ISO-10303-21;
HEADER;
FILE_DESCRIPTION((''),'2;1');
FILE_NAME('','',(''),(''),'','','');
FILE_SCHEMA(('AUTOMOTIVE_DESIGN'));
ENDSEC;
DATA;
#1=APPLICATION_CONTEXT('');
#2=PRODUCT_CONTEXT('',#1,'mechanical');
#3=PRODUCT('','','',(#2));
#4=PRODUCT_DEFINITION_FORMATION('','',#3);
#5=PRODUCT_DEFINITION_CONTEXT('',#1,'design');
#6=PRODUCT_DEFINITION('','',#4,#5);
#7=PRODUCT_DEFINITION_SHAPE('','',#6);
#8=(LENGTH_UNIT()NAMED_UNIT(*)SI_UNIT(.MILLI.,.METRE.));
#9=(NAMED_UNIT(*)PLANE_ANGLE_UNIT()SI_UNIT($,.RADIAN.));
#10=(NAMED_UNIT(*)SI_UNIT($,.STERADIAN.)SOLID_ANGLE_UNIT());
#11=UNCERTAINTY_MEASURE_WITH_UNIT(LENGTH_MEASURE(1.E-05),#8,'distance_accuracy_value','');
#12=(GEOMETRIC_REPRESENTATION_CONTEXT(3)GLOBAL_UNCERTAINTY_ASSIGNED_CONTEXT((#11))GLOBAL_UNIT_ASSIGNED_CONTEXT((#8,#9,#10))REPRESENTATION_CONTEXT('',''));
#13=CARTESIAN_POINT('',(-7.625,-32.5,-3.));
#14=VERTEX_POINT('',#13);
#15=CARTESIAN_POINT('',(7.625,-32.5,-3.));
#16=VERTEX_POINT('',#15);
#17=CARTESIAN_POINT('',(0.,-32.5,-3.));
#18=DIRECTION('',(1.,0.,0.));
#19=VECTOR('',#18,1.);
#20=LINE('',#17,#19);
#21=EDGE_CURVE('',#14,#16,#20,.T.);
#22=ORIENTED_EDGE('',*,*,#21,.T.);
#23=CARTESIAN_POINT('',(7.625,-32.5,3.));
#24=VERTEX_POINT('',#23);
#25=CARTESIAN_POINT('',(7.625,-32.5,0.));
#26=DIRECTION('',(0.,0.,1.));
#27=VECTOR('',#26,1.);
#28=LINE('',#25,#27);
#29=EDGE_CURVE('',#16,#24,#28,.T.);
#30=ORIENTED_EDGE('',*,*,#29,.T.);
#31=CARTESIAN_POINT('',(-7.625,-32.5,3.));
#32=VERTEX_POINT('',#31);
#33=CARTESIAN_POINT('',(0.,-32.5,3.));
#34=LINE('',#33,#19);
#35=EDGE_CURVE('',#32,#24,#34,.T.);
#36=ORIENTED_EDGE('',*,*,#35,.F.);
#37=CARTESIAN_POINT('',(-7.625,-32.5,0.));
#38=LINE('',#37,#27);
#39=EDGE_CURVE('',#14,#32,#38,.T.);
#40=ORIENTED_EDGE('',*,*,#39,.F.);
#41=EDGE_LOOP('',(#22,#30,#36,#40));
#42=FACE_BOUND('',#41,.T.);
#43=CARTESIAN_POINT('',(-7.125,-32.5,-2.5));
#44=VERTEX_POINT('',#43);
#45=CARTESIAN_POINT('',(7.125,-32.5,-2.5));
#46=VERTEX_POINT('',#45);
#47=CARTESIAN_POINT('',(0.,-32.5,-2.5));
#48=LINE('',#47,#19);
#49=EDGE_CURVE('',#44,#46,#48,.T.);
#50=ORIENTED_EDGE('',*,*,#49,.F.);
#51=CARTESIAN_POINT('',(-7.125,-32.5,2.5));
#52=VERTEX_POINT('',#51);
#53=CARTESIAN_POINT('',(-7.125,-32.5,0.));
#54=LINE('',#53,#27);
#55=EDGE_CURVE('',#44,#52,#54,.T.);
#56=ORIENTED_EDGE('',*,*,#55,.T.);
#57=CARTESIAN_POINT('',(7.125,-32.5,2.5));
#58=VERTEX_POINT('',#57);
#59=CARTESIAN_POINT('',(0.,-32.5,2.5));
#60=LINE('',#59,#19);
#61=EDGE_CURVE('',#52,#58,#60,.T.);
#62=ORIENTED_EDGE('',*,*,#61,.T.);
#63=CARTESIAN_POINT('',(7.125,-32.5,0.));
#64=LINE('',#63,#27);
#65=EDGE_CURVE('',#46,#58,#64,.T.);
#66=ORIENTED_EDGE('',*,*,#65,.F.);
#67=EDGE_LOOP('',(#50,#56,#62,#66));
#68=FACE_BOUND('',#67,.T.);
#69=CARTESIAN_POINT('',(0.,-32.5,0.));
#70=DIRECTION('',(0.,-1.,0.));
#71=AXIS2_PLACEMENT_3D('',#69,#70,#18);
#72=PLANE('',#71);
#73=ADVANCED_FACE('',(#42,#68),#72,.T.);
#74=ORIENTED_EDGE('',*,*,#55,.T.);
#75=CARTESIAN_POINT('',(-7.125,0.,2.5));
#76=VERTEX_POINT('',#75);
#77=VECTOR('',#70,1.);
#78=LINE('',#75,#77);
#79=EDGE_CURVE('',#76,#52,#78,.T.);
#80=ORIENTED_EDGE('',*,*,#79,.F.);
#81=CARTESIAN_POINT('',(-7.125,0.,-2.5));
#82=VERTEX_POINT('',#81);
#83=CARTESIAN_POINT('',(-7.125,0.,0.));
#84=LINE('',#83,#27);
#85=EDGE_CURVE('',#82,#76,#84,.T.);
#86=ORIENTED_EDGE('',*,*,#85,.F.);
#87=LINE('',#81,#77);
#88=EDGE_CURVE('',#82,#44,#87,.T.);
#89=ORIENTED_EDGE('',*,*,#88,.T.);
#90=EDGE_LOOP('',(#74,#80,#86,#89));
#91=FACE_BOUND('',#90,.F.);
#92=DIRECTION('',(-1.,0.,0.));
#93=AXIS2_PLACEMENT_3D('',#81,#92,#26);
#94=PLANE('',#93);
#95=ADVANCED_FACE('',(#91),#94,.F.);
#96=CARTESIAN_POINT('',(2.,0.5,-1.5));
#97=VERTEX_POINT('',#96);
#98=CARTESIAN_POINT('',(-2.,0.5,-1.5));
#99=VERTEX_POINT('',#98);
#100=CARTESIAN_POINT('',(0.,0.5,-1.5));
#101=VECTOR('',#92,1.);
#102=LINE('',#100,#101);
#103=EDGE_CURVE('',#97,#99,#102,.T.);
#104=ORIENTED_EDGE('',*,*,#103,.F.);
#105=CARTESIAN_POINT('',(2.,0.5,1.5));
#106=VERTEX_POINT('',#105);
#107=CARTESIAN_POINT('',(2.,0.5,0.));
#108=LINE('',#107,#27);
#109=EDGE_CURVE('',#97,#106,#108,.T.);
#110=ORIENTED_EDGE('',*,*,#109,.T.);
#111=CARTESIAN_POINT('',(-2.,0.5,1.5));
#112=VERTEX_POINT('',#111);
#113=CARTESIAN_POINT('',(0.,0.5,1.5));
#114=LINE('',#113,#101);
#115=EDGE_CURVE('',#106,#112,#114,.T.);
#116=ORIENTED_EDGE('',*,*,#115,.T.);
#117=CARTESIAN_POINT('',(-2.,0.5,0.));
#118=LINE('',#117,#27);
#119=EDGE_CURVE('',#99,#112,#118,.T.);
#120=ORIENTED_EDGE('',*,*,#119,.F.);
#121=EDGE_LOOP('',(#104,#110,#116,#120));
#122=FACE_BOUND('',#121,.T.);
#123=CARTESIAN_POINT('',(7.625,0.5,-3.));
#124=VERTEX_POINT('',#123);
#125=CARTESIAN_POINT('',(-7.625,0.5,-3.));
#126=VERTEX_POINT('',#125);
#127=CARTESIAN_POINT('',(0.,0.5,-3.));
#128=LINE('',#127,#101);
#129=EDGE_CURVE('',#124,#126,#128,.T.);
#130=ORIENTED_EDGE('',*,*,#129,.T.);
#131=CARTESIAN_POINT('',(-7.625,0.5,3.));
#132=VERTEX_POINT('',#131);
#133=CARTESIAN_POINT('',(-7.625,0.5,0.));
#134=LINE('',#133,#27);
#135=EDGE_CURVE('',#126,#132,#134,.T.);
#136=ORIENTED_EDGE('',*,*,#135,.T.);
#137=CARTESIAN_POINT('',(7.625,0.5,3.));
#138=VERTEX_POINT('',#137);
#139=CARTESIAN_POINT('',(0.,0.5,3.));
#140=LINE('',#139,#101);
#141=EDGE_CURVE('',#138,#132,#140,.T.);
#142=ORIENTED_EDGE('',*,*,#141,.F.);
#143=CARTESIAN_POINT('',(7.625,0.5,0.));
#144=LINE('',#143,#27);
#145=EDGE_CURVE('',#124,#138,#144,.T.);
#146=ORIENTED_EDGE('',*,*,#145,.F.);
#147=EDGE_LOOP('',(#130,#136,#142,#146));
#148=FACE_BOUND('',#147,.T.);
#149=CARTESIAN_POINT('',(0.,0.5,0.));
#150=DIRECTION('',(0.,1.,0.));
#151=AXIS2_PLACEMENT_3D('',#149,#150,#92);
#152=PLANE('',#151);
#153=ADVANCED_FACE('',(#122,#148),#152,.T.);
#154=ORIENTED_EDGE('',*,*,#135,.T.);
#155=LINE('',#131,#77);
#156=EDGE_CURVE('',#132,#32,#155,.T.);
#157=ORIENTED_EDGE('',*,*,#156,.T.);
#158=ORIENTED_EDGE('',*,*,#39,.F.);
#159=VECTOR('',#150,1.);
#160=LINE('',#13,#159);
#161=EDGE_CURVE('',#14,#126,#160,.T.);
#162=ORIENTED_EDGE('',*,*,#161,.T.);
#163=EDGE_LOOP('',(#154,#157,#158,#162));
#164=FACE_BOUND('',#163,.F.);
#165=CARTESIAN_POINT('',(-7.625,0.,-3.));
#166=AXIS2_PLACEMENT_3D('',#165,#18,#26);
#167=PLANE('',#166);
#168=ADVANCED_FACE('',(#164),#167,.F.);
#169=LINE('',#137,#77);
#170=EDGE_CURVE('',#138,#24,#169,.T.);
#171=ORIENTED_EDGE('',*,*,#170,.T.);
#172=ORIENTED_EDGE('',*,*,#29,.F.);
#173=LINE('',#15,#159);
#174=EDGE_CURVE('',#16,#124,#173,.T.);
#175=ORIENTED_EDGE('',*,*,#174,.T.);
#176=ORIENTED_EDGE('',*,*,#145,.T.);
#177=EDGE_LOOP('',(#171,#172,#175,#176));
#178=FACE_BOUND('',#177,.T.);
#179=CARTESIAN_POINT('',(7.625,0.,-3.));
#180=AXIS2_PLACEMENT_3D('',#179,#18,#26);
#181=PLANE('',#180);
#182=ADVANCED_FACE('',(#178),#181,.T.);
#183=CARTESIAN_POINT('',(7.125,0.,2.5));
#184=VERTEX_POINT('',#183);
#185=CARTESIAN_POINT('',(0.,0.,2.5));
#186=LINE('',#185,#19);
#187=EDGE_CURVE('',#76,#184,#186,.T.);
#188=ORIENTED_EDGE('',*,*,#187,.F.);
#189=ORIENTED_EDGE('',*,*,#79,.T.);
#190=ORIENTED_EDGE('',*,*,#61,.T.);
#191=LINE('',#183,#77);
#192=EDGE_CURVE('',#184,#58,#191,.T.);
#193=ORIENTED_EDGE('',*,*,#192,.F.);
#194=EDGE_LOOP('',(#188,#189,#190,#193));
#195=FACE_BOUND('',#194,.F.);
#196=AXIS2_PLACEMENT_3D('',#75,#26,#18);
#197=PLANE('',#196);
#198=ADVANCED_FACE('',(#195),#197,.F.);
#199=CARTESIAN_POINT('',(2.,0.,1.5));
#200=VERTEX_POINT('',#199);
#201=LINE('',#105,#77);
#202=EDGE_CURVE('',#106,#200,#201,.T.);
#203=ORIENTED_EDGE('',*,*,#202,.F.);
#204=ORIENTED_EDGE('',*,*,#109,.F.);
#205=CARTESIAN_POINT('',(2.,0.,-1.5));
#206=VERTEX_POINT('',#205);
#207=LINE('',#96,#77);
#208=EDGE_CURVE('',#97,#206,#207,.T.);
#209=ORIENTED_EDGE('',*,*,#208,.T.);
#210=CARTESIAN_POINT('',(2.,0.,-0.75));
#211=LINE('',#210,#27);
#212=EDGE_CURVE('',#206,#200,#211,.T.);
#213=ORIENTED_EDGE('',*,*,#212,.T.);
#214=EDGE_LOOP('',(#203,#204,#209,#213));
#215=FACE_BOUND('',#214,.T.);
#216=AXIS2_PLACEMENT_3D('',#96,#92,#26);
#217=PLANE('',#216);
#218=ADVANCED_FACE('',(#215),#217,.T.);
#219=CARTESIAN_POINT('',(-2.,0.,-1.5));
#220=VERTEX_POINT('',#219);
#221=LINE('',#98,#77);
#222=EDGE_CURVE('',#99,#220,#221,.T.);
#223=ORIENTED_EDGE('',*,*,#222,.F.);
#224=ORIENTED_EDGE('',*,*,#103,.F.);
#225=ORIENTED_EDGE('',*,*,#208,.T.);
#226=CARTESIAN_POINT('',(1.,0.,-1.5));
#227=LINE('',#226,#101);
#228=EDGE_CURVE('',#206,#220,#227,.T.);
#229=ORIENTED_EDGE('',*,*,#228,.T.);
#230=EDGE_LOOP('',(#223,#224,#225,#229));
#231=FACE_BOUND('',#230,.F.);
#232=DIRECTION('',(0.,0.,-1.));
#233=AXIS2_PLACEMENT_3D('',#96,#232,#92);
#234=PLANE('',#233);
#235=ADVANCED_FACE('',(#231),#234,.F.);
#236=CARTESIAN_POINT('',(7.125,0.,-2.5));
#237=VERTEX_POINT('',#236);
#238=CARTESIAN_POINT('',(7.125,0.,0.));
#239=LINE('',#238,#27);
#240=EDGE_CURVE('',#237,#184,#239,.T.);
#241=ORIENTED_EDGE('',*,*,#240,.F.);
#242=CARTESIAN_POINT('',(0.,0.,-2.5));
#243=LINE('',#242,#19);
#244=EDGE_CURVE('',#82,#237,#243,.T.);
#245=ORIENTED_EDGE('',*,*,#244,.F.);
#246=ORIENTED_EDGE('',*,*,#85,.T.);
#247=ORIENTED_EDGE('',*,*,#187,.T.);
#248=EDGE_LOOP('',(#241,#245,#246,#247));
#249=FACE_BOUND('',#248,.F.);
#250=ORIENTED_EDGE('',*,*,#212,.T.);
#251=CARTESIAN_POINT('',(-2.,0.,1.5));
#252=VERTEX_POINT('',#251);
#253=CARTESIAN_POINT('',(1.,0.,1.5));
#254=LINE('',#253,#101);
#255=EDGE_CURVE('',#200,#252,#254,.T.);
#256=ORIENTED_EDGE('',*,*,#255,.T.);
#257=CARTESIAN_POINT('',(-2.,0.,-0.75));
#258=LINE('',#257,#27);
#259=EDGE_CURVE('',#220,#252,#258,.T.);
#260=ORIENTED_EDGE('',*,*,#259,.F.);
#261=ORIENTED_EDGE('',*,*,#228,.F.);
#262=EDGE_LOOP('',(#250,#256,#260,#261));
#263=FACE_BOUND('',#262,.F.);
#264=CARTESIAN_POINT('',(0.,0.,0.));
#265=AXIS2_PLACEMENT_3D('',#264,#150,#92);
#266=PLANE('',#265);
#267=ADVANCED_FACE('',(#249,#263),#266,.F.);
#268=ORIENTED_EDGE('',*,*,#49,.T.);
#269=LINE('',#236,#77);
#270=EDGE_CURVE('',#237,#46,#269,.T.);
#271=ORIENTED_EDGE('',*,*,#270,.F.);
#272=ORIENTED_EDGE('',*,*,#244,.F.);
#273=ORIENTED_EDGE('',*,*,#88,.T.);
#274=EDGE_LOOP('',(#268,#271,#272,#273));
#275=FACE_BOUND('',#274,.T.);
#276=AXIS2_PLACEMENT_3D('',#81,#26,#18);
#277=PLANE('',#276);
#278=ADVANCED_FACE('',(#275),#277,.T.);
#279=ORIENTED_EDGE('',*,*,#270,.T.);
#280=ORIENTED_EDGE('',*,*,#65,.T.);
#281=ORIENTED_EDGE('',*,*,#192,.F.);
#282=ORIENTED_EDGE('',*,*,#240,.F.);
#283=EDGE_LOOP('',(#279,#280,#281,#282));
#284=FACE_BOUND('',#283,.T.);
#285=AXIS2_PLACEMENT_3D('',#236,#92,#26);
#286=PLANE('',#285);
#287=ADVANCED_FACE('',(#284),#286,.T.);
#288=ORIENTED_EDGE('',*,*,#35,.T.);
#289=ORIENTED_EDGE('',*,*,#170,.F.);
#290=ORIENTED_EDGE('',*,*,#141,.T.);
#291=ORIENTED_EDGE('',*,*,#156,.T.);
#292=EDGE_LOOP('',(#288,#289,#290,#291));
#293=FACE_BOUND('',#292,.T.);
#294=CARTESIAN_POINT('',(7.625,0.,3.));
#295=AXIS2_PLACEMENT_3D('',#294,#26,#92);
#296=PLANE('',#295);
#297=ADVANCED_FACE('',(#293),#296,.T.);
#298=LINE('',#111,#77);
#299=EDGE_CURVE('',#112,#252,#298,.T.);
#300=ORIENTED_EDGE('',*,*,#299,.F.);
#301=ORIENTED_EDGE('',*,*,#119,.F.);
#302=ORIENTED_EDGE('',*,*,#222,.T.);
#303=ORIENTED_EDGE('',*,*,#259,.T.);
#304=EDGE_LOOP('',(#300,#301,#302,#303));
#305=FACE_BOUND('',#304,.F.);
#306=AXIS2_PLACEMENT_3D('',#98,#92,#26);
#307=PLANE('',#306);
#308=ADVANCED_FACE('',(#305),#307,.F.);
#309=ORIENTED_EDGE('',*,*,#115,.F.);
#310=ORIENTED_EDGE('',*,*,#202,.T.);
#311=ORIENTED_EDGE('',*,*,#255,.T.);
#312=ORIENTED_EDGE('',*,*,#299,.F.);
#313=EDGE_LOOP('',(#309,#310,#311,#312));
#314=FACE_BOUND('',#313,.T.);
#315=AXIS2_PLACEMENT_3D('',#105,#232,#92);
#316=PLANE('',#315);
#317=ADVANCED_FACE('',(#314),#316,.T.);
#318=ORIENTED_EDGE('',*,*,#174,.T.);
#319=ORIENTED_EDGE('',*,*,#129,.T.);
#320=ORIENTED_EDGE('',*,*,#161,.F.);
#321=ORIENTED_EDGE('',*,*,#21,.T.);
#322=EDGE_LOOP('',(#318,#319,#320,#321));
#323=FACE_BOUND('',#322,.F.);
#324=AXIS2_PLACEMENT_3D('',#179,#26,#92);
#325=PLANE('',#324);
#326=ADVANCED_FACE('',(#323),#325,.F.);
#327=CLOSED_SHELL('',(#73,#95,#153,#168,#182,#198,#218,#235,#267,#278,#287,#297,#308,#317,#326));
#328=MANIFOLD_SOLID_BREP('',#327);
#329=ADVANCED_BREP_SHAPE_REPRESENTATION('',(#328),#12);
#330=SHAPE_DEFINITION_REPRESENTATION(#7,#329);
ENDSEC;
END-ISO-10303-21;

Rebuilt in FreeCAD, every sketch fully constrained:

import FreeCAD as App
import Part
import Sketcher
from FreeCAD import Vector


def add_polygon(sketch, points):
    """Adds a closed chain of lines whose ends are joined by coincident constraints."""
    first, n = sketch.GeometryCount, len(points)
    for a, b in zip(points, points[1:] + points[:1]):
        sketch.addGeometry(Part.LineSegment(App.Vector(*a, 0), App.Vector(*b, 0)), False)
    for i in range(n):
        sketch.addConstraint(Sketcher.Constraint("Coincident", first + i, 2, first + (i + 1) % n, 1))

doc = App.newDocument("Part")
body = doc.addObject("PartDesign::Body", "Body")

sketch1 = doc.addObject("Sketcher::SketchObject", "Sketch")
body.addObject(sketch1)
sketch1.AttachmentSupport = (doc.XZ_Plane, [""])
sketch1.MapMode = "FlatFace"
add_polygon(sketch1, [(-8, 3), (-8, -3), (8, -3), (8, 3)])
add_polygon(sketch1, [(7, -2), (-7, -2), (-7, 2), (7, 2)])
sketch1.addConstraint(Sketcher.Constraint("Vertical", 0))
sketch1.addConstraint(Sketcher.Constraint("Horizontal", 1))
sketch1.addConstraint(Sketcher.Constraint("Vertical", 2))
sketch1.addConstraint(Sketcher.Constraint("Horizontal", 3))
sketch1.addConstraint(Sketcher.Constraint("Horizontal", 4))
sketch1.addConstraint(Sketcher.Constraint("Vertical", 5))
sketch1.addConstraint(Sketcher.Constraint("Horizontal", 6))
sketch1.addConstraint(Sketcher.Constraint("Vertical", 7))
sketch1.addConstraint(Sketcher.Constraint("Symmetric", 0, 2, 2, 2, -1, 1))
sketch1.addConstraint(Sketcher.Constraint("Symmetric", 4, 2, 6, 2, -1, 1))
sketch1.addConstraint(Sketcher.Constraint("DistanceY", 0, 2, 0, 1, 6.0))
sketch1.addConstraint(Sketcher.Constraint("DistanceY", 5, 1, 5, 2, 5.0))
sketch1.addConstraint(Sketcher.Constraint("DistanceX", 1, 1, 1, 2, 15.25))
sketch1.addConstraint(Sketcher.Constraint("DistanceX", 4, 2, 4, 1, 14.25))
pad1 = doc.addObject("PartDesign::Pad", "Pad")
body.addObject(pad1)
pad1.Profile = sketch1
pad1.Length = 32.5

sketch2 = doc.addObject("Sketcher::SketchObject", "Sketch001")
body.addObject(sketch2)
sketch2.AttachmentSupport = (doc.XZ_Plane, [""])
sketch2.MapMode = "FlatFace"
add_polygon(sketch2, [(8, 3), (8, -3), (-8, -3), (-8, 3)])
sketch2.addConstraint(Sketcher.Constraint("Vertical", 0))
sketch2.addConstraint(Sketcher.Constraint("Horizontal", 1))
sketch2.addConstraint(Sketcher.Constraint("Vertical", 2))
sketch2.addConstraint(Sketcher.Constraint("Horizontal", 3))
sketch2.addConstraint(Sketcher.Constraint("Symmetric", 0, 2, 2, 2, -1, 1))
sketch2.addConstraint(Sketcher.Constraint("DistanceY", 0, 2, 0, 1, 6.0))
sketch2.addConstraint(Sketcher.Constraint("DistanceX", 1, 2, 1, 1, 15.25))
pad2 = doc.addObject("PartDesign::Pad", "Pad001")
body.addObject(pad2)
pad2.Profile = sketch2
pad2.Length = 0.5
pad2.Reversed = True

sketch3 = doc.addObject("Sketcher::SketchObject", "Sketch002")
body.addObject(sketch3)
sketch3.AttachmentSupport = (doc.XZ_Plane, [""])
sketch3.MapMode = "FlatFace"
sketch3.AttachmentOffset = App.Placement(Vector(0, 0, -0.5), App.Rotation())
add_polygon(sketch3, [(2, 1.5), (2, -1.5), (-2, -1.5), (-2, 1.5)])
sketch3.addConstraint(Sketcher.Constraint("Vertical", 0))
sketch3.addConstraint(Sketcher.Constraint("Horizontal", 1))
sketch3.addConstraint(Sketcher.Constraint("Vertical", 2))
sketch3.addConstraint(Sketcher.Constraint("Horizontal", 3))
sketch3.addConstraint(Sketcher.Constraint("Symmetric", 0, 2, 2, 2, -1, 1))
sketch3.addConstraint(Sketcher.Constraint("DistanceX", 1, 2, 1, 1, 4.0))
sketch3.addConstraint(Sketcher.Constraint("DistanceY", 0, 2, 0, 1, 3.0))
pocket1 = doc.addObject("PartDesign::Pocket", "Pocket")
body.addObject(pocket1)
pocket1.Profile = sketch3
pocket1.Type = "ThroughAll"
pocket1.Reversed = True

doc.recompute()
